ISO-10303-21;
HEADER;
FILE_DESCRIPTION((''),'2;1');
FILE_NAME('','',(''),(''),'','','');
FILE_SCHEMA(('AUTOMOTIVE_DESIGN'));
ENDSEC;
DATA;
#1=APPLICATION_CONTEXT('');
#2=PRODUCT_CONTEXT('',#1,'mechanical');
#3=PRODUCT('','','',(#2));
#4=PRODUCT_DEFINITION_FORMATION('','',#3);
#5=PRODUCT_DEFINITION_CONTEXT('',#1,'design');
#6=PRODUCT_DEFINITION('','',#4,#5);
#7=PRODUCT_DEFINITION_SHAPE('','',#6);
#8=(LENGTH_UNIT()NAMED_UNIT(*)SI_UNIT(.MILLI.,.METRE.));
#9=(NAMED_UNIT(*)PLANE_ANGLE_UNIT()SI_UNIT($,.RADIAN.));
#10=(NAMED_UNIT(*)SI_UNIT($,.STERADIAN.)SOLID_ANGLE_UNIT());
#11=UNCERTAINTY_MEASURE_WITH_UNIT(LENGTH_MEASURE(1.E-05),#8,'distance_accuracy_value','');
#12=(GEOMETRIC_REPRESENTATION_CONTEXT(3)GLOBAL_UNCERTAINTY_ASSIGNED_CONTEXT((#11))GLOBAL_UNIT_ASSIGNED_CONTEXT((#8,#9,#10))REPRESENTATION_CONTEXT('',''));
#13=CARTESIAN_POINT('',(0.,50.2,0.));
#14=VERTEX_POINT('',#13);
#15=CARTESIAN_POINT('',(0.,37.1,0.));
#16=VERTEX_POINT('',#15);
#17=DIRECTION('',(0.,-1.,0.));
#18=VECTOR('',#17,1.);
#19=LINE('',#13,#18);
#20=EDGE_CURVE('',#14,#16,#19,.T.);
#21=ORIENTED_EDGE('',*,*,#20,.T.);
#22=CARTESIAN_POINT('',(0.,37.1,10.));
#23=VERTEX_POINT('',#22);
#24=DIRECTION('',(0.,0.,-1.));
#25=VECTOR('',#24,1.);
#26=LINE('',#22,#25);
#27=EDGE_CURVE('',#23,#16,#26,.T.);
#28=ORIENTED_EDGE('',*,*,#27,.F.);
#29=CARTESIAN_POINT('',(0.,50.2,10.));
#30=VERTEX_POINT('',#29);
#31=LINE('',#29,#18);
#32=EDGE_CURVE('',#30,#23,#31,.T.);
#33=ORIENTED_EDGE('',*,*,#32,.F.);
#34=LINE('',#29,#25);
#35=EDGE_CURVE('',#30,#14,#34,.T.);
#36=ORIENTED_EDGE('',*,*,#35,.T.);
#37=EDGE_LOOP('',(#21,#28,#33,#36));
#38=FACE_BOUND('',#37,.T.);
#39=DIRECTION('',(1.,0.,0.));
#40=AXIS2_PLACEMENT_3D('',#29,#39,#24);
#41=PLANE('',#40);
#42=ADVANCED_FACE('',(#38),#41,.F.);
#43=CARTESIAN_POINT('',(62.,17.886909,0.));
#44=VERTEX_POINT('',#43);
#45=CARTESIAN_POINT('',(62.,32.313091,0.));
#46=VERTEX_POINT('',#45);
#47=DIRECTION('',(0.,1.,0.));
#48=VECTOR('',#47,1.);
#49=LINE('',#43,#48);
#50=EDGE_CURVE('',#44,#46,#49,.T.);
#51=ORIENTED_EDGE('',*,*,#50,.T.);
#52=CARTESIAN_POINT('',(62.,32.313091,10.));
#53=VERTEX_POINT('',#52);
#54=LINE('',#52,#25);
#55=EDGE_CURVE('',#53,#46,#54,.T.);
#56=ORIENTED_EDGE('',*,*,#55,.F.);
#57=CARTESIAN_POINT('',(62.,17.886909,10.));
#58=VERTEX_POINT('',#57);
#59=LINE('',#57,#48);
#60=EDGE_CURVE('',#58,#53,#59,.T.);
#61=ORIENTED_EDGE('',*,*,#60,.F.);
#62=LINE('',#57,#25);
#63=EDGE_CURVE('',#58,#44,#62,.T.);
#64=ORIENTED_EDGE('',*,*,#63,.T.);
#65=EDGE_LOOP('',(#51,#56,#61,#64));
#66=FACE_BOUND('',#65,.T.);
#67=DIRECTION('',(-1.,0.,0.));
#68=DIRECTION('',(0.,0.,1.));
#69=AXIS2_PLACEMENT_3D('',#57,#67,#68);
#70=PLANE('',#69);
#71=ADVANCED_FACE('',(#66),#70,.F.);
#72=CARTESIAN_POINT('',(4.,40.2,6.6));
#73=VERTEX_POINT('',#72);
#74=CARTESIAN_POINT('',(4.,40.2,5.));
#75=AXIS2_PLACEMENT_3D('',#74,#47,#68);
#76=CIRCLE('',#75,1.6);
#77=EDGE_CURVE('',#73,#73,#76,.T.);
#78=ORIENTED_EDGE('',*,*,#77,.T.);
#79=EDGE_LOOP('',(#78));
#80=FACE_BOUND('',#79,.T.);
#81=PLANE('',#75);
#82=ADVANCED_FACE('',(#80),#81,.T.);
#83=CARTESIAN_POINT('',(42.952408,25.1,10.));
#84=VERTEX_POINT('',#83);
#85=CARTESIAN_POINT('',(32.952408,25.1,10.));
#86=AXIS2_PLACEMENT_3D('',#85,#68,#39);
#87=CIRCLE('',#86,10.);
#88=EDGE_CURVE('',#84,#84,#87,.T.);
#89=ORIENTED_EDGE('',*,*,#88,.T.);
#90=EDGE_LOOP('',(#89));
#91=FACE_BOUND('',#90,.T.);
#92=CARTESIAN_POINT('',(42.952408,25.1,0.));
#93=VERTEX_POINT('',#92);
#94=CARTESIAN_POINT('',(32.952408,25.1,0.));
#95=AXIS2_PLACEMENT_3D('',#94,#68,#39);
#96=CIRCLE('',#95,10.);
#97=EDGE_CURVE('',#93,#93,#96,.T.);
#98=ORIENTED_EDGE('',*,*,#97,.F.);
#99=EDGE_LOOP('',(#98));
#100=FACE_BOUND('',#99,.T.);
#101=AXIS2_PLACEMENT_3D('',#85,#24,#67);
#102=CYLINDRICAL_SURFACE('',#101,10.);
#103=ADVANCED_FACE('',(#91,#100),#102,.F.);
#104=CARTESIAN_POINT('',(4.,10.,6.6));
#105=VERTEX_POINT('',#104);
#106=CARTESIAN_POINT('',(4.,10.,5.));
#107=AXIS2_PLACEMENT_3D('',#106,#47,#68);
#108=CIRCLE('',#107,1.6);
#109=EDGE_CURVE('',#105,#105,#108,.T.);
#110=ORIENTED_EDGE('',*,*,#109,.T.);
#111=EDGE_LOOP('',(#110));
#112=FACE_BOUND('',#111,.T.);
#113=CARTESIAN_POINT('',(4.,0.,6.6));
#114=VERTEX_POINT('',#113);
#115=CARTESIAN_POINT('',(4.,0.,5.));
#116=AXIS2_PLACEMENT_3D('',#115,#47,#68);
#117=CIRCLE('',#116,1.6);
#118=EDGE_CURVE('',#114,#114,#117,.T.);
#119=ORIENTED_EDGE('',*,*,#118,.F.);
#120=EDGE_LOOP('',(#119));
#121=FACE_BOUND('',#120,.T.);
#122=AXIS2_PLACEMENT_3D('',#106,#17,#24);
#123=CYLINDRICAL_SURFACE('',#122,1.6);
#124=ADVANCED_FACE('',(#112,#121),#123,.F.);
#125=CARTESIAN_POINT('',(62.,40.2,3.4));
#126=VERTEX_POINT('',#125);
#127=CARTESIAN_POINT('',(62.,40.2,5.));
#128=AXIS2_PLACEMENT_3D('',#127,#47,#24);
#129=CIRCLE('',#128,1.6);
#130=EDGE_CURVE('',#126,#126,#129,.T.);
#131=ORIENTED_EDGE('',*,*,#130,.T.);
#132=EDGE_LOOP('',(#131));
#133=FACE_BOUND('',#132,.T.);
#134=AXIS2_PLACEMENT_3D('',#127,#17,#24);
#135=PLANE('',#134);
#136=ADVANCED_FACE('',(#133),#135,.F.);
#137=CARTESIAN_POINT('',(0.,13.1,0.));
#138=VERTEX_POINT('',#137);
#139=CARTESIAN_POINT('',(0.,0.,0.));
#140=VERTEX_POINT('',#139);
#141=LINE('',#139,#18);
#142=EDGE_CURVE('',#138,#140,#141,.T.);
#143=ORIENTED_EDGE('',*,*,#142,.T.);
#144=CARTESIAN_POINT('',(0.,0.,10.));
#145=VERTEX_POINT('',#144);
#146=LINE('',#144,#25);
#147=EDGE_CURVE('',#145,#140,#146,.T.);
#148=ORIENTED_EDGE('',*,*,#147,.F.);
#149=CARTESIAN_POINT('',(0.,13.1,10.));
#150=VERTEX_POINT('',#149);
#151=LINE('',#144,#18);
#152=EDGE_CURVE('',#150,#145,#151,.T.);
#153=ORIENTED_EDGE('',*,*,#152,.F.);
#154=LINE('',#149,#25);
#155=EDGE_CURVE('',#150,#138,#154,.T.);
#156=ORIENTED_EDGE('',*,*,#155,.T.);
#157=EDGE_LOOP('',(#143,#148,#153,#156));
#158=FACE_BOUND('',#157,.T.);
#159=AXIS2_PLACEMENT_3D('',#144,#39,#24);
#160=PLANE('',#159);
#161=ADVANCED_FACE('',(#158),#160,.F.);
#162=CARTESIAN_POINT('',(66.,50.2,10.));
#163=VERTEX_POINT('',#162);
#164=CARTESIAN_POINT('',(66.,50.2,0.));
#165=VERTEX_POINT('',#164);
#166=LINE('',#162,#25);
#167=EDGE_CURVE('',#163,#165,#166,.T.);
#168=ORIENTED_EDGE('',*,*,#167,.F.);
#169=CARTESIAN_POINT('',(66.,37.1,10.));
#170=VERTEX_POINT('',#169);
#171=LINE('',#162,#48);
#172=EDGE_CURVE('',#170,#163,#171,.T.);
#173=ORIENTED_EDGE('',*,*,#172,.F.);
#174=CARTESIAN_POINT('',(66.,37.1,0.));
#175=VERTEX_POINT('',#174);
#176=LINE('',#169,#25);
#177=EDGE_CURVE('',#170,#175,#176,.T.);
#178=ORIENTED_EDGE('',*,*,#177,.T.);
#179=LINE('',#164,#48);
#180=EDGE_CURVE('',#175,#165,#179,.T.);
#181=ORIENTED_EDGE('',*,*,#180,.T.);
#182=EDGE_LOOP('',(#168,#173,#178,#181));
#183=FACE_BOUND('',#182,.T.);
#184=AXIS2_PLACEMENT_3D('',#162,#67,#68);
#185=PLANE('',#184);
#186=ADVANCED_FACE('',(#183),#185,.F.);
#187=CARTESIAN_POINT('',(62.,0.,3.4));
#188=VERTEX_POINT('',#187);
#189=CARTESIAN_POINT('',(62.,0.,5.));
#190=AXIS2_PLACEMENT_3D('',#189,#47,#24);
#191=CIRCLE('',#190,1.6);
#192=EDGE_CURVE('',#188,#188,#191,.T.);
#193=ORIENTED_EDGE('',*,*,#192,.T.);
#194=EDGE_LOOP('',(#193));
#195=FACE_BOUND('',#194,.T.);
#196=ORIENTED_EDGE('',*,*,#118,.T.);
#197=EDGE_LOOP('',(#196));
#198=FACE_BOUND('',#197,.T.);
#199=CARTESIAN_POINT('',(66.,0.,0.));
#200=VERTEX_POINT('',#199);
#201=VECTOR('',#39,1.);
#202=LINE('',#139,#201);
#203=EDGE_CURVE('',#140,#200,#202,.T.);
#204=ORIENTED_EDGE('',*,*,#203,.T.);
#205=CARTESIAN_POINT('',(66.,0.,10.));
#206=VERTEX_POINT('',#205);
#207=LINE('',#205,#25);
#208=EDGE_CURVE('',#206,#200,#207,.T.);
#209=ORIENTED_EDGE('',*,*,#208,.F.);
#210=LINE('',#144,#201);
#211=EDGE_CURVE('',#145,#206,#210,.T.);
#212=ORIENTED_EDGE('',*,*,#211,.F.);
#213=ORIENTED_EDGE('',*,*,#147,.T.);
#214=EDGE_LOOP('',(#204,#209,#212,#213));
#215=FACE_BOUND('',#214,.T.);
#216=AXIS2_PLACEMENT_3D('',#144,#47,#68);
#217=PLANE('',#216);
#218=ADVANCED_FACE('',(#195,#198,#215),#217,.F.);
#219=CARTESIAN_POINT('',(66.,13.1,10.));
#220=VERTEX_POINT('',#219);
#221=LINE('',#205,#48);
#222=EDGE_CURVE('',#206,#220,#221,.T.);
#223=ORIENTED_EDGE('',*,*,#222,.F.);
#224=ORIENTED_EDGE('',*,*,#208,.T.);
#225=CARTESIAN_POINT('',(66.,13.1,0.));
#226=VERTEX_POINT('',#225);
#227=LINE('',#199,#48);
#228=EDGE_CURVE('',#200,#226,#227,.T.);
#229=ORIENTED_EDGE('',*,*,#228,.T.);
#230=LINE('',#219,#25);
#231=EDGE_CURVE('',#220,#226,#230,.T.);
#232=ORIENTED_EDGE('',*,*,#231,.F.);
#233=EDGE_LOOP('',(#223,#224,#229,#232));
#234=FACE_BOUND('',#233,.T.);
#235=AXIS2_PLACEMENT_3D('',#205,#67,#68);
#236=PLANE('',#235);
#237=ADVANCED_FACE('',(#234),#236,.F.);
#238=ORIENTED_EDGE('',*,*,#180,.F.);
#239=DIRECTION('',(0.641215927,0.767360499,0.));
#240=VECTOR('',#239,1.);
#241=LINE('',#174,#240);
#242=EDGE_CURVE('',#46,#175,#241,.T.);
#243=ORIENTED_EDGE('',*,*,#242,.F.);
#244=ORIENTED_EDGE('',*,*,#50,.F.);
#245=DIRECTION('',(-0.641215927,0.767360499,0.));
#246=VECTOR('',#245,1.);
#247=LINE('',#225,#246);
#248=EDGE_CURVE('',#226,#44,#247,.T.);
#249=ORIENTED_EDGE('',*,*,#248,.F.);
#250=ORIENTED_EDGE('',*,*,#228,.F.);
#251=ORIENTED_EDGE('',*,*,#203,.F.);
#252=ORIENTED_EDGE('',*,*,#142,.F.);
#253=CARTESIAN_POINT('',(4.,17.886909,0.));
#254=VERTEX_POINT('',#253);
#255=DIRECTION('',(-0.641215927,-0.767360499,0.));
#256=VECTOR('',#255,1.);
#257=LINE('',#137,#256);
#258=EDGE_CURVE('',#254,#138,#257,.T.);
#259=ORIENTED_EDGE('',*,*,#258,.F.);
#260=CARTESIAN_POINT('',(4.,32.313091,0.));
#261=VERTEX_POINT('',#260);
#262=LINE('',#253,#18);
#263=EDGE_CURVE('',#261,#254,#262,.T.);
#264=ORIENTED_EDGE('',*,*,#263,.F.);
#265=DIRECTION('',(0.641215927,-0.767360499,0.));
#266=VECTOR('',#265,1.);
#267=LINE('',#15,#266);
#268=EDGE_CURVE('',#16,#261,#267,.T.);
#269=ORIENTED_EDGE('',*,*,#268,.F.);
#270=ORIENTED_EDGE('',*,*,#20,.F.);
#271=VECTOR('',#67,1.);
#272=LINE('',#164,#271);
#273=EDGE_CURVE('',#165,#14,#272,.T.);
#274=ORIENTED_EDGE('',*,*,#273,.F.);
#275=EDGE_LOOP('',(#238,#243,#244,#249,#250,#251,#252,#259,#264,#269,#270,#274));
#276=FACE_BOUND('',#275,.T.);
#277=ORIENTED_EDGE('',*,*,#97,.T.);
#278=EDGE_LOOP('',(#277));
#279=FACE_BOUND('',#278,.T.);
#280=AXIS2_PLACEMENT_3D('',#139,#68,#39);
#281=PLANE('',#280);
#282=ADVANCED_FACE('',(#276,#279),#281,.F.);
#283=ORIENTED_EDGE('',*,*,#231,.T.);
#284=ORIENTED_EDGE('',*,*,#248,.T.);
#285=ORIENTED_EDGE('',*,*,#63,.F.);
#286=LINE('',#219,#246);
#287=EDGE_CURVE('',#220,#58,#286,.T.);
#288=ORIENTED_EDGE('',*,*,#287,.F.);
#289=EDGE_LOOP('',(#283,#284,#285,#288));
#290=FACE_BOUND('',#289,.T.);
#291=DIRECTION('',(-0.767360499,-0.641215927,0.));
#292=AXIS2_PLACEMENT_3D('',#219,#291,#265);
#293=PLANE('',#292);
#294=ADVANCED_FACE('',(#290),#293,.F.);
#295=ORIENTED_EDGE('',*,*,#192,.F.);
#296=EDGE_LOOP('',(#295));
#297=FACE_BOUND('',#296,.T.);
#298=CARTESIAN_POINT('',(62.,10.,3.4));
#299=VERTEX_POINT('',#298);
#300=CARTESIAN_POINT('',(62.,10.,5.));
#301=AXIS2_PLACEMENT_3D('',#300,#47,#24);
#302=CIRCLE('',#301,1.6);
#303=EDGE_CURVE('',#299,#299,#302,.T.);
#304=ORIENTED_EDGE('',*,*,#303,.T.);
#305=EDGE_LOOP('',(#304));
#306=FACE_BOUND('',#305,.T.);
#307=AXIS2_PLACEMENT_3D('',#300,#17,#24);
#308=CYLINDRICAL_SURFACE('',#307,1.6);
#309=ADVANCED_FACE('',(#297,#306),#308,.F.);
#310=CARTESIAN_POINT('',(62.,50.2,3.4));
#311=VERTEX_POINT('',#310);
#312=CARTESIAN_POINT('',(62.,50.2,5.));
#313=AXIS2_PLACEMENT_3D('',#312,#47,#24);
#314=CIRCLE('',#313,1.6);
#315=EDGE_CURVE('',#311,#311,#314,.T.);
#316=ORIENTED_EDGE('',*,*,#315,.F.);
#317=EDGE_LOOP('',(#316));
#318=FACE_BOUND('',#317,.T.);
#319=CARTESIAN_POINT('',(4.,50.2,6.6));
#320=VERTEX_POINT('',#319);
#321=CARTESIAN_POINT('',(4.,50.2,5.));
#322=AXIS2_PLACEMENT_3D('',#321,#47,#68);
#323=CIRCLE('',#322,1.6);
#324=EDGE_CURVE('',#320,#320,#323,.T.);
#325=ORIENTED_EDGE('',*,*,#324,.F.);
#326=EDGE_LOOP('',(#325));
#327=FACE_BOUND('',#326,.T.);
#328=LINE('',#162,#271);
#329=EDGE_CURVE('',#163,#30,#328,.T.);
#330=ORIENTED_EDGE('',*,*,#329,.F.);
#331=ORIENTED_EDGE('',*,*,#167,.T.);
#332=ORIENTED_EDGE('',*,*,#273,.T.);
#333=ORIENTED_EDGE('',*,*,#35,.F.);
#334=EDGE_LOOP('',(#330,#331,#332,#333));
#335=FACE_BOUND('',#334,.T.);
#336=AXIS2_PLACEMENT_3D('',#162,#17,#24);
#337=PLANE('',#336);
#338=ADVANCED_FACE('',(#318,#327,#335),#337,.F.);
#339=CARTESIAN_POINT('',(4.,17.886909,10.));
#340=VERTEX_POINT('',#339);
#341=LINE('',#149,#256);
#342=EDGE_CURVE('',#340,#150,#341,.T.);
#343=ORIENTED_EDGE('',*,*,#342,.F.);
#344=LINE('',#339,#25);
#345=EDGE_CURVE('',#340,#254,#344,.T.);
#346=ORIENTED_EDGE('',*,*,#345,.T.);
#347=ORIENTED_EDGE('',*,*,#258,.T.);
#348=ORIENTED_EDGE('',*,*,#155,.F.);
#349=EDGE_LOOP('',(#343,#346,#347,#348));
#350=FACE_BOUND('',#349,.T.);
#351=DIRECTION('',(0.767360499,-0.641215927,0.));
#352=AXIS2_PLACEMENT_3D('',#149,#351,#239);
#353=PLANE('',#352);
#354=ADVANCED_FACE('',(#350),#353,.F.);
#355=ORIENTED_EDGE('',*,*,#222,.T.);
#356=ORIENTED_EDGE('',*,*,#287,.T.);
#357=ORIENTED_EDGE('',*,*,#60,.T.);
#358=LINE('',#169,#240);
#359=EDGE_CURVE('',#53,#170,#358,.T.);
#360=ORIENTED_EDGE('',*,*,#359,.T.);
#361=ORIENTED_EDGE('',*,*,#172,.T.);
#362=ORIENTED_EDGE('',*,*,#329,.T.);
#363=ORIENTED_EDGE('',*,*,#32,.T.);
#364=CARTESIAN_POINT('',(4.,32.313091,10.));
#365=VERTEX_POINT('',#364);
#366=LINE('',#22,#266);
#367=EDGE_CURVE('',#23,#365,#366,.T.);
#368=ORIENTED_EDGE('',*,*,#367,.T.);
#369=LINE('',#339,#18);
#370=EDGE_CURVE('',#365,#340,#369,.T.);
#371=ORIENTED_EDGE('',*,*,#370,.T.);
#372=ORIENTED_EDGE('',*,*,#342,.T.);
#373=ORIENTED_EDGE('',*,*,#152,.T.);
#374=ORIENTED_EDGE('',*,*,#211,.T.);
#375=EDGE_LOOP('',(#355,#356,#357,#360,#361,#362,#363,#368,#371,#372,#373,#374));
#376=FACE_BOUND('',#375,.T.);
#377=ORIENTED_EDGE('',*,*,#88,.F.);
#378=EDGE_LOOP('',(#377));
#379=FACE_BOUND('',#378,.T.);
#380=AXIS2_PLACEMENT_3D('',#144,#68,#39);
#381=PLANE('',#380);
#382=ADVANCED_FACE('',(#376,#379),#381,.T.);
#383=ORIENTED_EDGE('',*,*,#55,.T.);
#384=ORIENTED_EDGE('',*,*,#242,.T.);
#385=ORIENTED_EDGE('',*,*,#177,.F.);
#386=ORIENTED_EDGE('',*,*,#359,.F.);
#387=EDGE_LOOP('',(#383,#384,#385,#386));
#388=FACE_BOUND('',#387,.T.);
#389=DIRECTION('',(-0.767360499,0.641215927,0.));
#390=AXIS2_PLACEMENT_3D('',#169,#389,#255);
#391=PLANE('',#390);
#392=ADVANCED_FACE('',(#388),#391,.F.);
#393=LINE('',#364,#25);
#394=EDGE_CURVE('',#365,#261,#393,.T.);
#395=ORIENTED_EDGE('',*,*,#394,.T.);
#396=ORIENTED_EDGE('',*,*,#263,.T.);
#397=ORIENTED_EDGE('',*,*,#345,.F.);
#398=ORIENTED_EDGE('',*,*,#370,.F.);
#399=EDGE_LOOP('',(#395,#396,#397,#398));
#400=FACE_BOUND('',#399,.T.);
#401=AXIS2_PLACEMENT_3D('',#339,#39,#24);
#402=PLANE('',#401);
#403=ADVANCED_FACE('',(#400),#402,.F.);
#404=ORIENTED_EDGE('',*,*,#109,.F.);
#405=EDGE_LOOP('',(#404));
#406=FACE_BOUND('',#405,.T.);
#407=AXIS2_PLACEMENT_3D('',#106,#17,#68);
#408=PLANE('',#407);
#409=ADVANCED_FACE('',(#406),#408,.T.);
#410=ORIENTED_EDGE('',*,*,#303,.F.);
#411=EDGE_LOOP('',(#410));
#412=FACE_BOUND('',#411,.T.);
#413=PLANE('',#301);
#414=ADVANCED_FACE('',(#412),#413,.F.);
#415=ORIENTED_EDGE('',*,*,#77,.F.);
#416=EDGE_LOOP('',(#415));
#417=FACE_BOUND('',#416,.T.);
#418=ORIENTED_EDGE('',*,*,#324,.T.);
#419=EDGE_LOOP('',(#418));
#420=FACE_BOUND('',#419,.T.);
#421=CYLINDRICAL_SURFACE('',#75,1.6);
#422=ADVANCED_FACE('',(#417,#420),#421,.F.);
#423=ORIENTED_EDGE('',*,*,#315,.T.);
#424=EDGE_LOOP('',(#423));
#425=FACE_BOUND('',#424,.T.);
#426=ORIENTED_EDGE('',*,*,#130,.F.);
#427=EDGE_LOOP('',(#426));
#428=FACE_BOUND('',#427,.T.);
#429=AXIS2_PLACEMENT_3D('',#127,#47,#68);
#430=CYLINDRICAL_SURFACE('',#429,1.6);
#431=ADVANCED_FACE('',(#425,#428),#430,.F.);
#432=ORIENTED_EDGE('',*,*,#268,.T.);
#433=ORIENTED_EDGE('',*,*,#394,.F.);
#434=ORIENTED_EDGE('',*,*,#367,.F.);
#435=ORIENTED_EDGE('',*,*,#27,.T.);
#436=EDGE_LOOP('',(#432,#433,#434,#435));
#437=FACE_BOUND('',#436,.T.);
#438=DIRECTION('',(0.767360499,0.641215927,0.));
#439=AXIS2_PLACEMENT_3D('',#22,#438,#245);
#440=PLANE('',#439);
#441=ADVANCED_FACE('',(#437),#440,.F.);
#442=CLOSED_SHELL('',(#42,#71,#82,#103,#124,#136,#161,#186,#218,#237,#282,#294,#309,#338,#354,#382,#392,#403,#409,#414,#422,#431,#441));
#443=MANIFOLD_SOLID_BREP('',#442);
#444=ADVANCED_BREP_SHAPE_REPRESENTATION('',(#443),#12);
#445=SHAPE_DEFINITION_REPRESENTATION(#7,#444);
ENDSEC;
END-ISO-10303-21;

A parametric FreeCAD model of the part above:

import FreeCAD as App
import Part
import Sketcher
from FreeCAD import Vector

doc = App.newDocument("Part")
body = doc.addObject("PartDesign::Body", "Body")

sketch1 = doc.addObject("Sketcher::SketchObject", "Sketch")
body.addObject(sketch1)
sketch1.AttachmentSupport = (doc.XY_Plane, [""])
sketch1.MapMode = "FlatFace"
sketch1.addGeometry(Part.LineSegment(Vector(0, 0, 0), Vector(66, 0, 0)), False)
sketch1.addGeometry(Part.LineSegment(Vector(66, 0, 0), Vector(66, 13, 0)), False)
sketch1.addGeometry(Part.LineSegment(Vector(66, 13, 0), Vector(62, 18, 0)), False)
sketch1.addGeometry(Part.LineSegment(Vector(62, 18, 0), Vector(62, 32, 0)), False)
sketch1.addGeometry(Part.LineSegment(Vector(62, 32, 0), Vector(66, 37, 0)), False)
sketch1.addGeometry(Part.LineSegment(Vector(66, 37, 0), Vector(66, 50, 0)), False)
sketch1.addGeometry(Part.LineSegment(Vector(66, 50, 0), Vector(0, 50, 0)), False)
sketch1.addGeometry(Part.LineSegment(Vector(0, 50, 0), Vector(0, 37, 0)), False)
sketch1.addGeometry(Part.LineSegment(Vector(0, 37, 0), Vector(4, 32, 0)), False)
sketch1.addGeometry(Part.LineSegment(Vector(4, 32, 0), Vector(4, 18, 0)), False)
sketch1.addGeometry(Part.LineSegment(Vector(4, 18, 0), Vector(0, 13, 0)), False)
sketch1.addGeometry(Part.LineSegment(Vector(0, 13, 0), Vector(0, 0, 0)), False)
sketch1.addGeometry(Part.Circle(Vector(33, 25, 0), Vector(0, 0, 1), 10), False)
sketch1.addConstraint(Sketcher.Constraint("Coincident", 0, 2, 1, 1))
sketch1.addConstraint(Sketcher.Constraint("Coincident", 1, 2, 2, 1))
sketch1.addConstraint(Sketcher.Constraint("Coincident", 2, 2, 3, 1))
sketch1.addConstraint(Sketcher.Constraint("Coincident", 3, 2, 4, 1))
sketch1.addConstraint(Sketcher.Constraint("Coincident", 4, 2, 5, 1))
sketch1.addConstraint(Sketcher.Constraint("Coincident", 5, 2, 6, 1))
sketch1.addConstraint(Sketcher.Constraint("Coincident", 6, 2, 7, 1))
sketch1.addConstraint(Sketcher.Constraint("Coincident", 7, 2, 8, 1))
sketch1.addConstraint(Sketcher.Constraint("Coincident", 8, 2, 9, 1))
sketch1.addConstraint(Sketcher.Constraint("Coincident", 9, 2, 10, 1))
sketch1.addConstraint(Sketcher.Constraint("Coincident", 10, 2, 11, 1))
sketch1.addConstraint(Sketcher.Constraint("Coincident", 11, 2, 0, 1))
sketch1.addConstraint(Sketcher.Constraint("Horizontal", 0))
sketch1.addConstraint(Sketcher.Constraint("Vertical", 1))
sketch1.addConstraint(Sketcher.Constraint("Vertical", 3))
sketch1.addConstraint(Sketcher.Constraint("Vertical", 5))
sketch1.addConstraint(Sketcher.Constraint("Horizontal", 6))
sketch1.addConstraint(Sketcher.Constraint("Vertical", 7))
sketch1.addConstraint(Sketcher.Constraint("Vertical", 9))
sketch1.addConstraint(Sketcher.Constraint("Vertical", 11))
sketch1.addConstraint(Sketcher.Constraint("Coincident", 11, 2, -1, 1))
sketch1.addConstraint(Sketcher.Constraint("PointOnObject", 6, 2, -2))
sketch1.addConstraint(Sketcher.Constraint("Parallel", 2, 8))
sketch1.addConstraint(Sketcher.Constraint("Parallel", 4, 10))
sketch1.addConstraint(Sketcher.Constraint("Horizontal", 4, 2, 7, 2))
sketch1.addConstraint(Sketcher.Constraint("Horizontal", 3, 2, 8, 2))
sketch1.addConstraint(Sketcher.Constraint("Horizontal", 2, 2, 9, 2))
sketch1.addConstraint(Sketcher.Constraint("Horizontal", 1, 2, 10, 2))
sketch1.addConstraint(Sketcher.Constraint("Vertical", 1, 2, 4, 2))
sketch1.addConstraint(Sketcher.Constraint("Equal", 1, 5))
sketch1.addConstraint(Sketcher.Constraint("Diameter", 12, 20.0))
sketch1.addConstraint(Sketcher.Constraint("DistanceX", 0, 1, 0, 2, 66.0))
sketch1.addConstraint(Sketcher.Constraint("DistanceY", 1, 1, 1, 2, 13.1))
sketch1.addConstraint(Sketcher.Constraint("DistanceX", -1, 1, 2, 2, 62.0))
sketch1.addConstraint(Sketcher.Constraint("DistanceY", 1, 2, 12, 3, 12.0))
sketch1.addConstraint(Sketcher.Constraint("DistanceY", 1, 2, 4, 2, 24.0))
sketch1.addConstraint(Sketcher.Constraint("Distance", 2, 6.238148))
sketch1.addConstraint(Sketcher.Constraint("DistanceX", -1, 1, 12, 3, 32.952408))
pad1 = doc.addObject("PartDesign::Pad", "Pad")
body.addObject(pad1)
pad1.Profile = sketch1
pad1.Length = 10

sketch2 = doc.addObject("Sketcher::SketchObject", "Sketch001")
body.addObject(sketch2)
sketch2.AttachmentSupport = (doc.XZ_Plane, [""])
sketch2.MapMode = "FlatFace"
sketch2.AttachmentOffset = App.Placement(Vector(0, 0, -50.2), App.Rotation())
sketch2.addGeometry(Part.Circle(Vector(4, 5, 0), Vector(0, 0, 1), 1.6), False)
sketch2.addGeometry(Part.Circle(Vector(62, 5, 0), Vector(0, 0, 1), 1.6), False)
sketch2.addConstraint(Sketcher.Constraint("Equal", 0, 1))
sketch2.addConstraint(Sketcher.Constraint("Horizontal", 0, 3, 1, 3))
sketch2.addConstraint(Sketcher.Constraint("Diameter", 0, 3.2))
sketch2.addConstraint(Sketcher.Constraint("DistanceX", -1, 1, 0, 3, 4.0))
sketch2.addConstraint(Sketcher.Constraint("DistanceY", -1, 1, 0, 3, 5.0))
sketch2.addConstraint(Sketcher.Constraint("DistanceX", -1, 1, 1, 3, 62.0))
pocket1 = doc.addObject("PartDesign::Pocket", "Pocket")
body.addObject(pocket1)
pocket1.Profile = sketch2
pocket1.Length = 10
pocket1.Reversed = True
doc.recompute()

datumplane = doc.addObject("PartDesign::Plane", "DatumPlane")
body.addObject(datumplane)
datumplane.AttachmentSupport = (doc.XZ_Plane, [""])
datumplane.MapMode = "FlatFace"
datumplane.AttachmentOffset = App.Placement(Vector(0, 0, -25.1), App.Rotation())
mirrored = doc.addObject("PartDesign::Mirrored", "Mirrored")
body.addObject(mirrored)
mirrored.Originals = [pocket1]
mirrored.MirrorPlane = (datumplane, [""])
body.Tip = mirrored

doc.recompute()
